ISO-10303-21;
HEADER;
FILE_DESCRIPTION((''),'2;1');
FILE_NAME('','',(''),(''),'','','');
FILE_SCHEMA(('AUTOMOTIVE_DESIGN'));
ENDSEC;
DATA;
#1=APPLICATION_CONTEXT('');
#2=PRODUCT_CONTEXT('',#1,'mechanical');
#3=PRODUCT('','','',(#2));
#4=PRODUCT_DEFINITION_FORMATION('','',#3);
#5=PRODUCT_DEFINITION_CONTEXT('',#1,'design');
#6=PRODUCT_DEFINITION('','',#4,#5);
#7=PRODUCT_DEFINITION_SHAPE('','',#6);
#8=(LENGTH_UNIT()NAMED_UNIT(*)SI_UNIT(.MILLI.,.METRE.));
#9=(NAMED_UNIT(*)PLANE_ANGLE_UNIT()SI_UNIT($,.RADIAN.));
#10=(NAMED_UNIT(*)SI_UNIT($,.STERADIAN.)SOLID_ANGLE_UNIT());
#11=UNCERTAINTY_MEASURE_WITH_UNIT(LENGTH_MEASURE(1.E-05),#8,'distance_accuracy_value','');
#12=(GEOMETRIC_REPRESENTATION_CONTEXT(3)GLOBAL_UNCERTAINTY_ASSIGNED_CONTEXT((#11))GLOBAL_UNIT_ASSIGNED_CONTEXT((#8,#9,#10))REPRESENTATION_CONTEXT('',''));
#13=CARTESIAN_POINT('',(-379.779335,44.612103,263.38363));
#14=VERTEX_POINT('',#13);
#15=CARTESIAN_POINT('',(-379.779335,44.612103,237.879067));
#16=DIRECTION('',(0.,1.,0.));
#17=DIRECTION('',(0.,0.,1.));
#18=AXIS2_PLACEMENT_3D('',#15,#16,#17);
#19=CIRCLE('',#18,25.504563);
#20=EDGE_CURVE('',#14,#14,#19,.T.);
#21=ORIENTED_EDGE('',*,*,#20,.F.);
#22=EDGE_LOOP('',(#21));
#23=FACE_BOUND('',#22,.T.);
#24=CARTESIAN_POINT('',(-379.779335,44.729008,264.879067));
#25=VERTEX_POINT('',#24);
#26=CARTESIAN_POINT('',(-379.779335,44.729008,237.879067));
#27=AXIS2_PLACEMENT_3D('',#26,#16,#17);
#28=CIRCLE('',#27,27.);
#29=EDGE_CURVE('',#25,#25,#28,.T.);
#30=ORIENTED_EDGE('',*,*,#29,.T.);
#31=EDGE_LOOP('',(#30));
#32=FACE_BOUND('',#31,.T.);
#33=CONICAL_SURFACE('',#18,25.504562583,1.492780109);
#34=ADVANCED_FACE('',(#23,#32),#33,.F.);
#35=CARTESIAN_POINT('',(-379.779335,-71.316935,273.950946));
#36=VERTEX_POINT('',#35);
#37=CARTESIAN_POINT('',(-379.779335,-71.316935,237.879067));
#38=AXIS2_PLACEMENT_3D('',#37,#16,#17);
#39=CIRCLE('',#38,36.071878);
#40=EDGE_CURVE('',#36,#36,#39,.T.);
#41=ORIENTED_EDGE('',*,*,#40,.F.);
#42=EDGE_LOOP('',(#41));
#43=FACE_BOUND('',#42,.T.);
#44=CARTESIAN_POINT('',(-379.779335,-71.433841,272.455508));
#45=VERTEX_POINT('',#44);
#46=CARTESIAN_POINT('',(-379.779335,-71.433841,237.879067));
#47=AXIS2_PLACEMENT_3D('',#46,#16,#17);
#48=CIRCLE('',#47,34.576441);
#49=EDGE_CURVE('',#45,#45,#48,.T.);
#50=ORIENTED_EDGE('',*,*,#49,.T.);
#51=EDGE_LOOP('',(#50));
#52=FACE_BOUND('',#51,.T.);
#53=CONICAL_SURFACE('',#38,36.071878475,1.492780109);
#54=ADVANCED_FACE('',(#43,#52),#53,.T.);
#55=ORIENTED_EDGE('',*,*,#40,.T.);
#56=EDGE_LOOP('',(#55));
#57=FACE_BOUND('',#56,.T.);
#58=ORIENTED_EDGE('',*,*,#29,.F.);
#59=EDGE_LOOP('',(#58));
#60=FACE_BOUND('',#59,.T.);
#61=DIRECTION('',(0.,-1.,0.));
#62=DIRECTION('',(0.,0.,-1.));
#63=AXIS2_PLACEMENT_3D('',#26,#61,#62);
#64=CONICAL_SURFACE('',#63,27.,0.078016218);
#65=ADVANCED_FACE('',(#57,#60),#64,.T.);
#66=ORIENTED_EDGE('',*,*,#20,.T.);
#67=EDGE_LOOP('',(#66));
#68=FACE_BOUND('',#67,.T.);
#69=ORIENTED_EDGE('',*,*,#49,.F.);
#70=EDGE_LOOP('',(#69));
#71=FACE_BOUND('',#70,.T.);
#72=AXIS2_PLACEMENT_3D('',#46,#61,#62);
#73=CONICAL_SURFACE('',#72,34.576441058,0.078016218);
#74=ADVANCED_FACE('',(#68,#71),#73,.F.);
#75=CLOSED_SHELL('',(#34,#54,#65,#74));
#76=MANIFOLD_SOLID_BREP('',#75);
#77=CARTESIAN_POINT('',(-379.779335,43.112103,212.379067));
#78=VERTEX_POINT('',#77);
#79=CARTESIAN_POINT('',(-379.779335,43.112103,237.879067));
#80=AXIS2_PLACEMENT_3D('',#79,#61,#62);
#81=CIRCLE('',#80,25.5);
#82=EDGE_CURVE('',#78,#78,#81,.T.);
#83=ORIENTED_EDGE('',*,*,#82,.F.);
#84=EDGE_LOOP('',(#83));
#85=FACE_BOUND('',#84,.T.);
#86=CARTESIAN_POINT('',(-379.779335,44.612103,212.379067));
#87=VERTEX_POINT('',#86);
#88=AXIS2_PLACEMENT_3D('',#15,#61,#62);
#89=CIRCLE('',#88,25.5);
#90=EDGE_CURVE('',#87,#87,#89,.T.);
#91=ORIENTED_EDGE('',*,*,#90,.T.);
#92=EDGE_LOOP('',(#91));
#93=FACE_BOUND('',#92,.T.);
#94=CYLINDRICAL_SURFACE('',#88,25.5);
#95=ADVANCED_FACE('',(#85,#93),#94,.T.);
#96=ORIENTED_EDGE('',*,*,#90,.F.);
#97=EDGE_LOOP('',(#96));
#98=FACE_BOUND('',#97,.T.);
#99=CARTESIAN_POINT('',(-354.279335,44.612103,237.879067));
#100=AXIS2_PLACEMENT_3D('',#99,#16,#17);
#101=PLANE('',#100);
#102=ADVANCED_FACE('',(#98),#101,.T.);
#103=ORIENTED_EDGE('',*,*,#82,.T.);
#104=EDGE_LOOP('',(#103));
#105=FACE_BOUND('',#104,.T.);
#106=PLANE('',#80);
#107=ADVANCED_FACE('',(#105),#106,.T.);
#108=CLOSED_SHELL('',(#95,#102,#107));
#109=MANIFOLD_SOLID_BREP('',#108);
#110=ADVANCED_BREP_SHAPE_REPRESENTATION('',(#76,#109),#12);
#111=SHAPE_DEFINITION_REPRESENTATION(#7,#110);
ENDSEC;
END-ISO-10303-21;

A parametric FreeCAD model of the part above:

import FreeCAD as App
import Part
import Sketcher
from FreeCAD import Vector
Q = App.Units.Quantity


def add_polygon(sketch, points):
    """Adds a closed chain of lines whose ends are joined by coincident constraints."""
    first, n = sketch.GeometryCount, len(points)
    for a, b in zip(points, points[1:] + points[:1]):
        sketch.addGeometry(Part.LineSegment(App.Vector(*a, 0), App.Vector(*b, 0)), False)
    for i in range(n):
        sketch.addConstraint(Sketcher.Constraint("Coincident", first + i, 2, first + (i + 1) % n, 1))

doc = App.newDocument("Part")
body = doc.addObject("PartDesign::Body", "Body")

sketch1 = doc.addObject("Sketcher::SketchObject", "Sketch")
body.addObject(sketch1)
sketch1.AttachmentSupport = (doc.XY_Plane, [""])
sketch1.MapMode = "FlatFace"
sketch1.AttachmentOffset = App.Placement(Vector(0, 0, 237.879067), App.Rotation())
add_polygon(sketch1, [(-379.8, 44.6), (-379.8, 43.1), (-354.3, 43.1), (-354.3, 44.6)])
sketch1.addGeometry(Part.LineSegment(Vector(-379.8, 44.6, 0), Vector(-379.8, 43.1, 0)), True)
sketch1.addConstraint([
    Sketcher.Constraint("Vertical", 0),
    Sketcher.Constraint("Horizontal", 1),
    Sketcher.Constraint("Vertical", 2),
    Sketcher.Constraint("Horizontal", 3),
    Sketcher.Constraint("Vertical", 4),
    Sketcher.Constraint("Coincident", 4, 1, 3, 2),
    Sketcher.Constraint("Horizontal", 1, 2, 4, 2),
    Sketcher.Constraint("DistanceX", 1, 1, 1, 2, 25.5),
    Sketcher.Constraint("DistanceY", 0, 2, 0, 1, 1.5),
    Sketcher.Constraint("DistanceX", 0, 2, -1, 1, 379.779335),
    Sketcher.Constraint("DistanceY", -1, 1, 0, 2, 43.112103),
])
revolution = doc.addObject("PartDesign::Revolution", "Revolution")
body.addObject(revolution)
revolution.Profile = sketch1
revolution.ReferenceAxis = (sketch1, ["Axis0"])
revolution.Angle = 360
body2 = doc.addObject("PartDesign::Body", "Body001")

sketch2 = doc.addObject("Sketcher::SketchObject", "Sketch001")
body2.addObject(sketch2)
sketch2.AttachmentSupport = (doc.getObject("XY_Plane001"), [""])
sketch2.MapMode = "FlatFace"
sketch2.AttachmentOffset = App.Placement(Vector(0, 0, 237.879067), App.Rotation())
add_polygon(sketch2, [(-343.7, -71.3), (-345.2, -71.4), (-354.3, 44.6), (-352.8, 44.7)])
sketch2.addGeometry(Part.LineSegment(Vector(-379.8, -71.4, 0), Vector(-379.8, 44.7, 0)), True)
sketch2.addConstraint([
    Sketcher.Constraint("Vertical", 4),
    Sketcher.Constraint("Perpendicular", 0, 1),
    Sketcher.Constraint("Perpendicular", 1, 2),
    Sketcher.Constraint("Perpendicular", 2, 3),
    Sketcher.Constraint("Horizontal", 0, 2, 4, 1),
    Sketcher.Constraint("Horizontal", 2, 2, 4, 2),
    Sketcher.Constraint("DistanceX", 4, 1, 2, 2, 27.0),
    Sketcher.Constraint("Distance", 0, 1.5),
    Sketcher.Constraint("Distance", 1, 116.4),
    Sketcher.Constraint("Angle", 0, Q("-175.53 deg")),
    Sketcher.Constraint("DistanceY", 0, 2, -1, 1, 71.433841),
    Sketcher.Constraint("DistanceX", 0, 2, -1, 1, 345.202894),
])
revolution2 = doc.addObject("PartDesign::Revolution", "Revolution001")
body2.addObject(revolution2)
revolution2.Profile = sketch2
revolution2.ReferenceAxis = (sketch2, ["Axis0"])
revolution2.Angle = 360

doc.recompute()
